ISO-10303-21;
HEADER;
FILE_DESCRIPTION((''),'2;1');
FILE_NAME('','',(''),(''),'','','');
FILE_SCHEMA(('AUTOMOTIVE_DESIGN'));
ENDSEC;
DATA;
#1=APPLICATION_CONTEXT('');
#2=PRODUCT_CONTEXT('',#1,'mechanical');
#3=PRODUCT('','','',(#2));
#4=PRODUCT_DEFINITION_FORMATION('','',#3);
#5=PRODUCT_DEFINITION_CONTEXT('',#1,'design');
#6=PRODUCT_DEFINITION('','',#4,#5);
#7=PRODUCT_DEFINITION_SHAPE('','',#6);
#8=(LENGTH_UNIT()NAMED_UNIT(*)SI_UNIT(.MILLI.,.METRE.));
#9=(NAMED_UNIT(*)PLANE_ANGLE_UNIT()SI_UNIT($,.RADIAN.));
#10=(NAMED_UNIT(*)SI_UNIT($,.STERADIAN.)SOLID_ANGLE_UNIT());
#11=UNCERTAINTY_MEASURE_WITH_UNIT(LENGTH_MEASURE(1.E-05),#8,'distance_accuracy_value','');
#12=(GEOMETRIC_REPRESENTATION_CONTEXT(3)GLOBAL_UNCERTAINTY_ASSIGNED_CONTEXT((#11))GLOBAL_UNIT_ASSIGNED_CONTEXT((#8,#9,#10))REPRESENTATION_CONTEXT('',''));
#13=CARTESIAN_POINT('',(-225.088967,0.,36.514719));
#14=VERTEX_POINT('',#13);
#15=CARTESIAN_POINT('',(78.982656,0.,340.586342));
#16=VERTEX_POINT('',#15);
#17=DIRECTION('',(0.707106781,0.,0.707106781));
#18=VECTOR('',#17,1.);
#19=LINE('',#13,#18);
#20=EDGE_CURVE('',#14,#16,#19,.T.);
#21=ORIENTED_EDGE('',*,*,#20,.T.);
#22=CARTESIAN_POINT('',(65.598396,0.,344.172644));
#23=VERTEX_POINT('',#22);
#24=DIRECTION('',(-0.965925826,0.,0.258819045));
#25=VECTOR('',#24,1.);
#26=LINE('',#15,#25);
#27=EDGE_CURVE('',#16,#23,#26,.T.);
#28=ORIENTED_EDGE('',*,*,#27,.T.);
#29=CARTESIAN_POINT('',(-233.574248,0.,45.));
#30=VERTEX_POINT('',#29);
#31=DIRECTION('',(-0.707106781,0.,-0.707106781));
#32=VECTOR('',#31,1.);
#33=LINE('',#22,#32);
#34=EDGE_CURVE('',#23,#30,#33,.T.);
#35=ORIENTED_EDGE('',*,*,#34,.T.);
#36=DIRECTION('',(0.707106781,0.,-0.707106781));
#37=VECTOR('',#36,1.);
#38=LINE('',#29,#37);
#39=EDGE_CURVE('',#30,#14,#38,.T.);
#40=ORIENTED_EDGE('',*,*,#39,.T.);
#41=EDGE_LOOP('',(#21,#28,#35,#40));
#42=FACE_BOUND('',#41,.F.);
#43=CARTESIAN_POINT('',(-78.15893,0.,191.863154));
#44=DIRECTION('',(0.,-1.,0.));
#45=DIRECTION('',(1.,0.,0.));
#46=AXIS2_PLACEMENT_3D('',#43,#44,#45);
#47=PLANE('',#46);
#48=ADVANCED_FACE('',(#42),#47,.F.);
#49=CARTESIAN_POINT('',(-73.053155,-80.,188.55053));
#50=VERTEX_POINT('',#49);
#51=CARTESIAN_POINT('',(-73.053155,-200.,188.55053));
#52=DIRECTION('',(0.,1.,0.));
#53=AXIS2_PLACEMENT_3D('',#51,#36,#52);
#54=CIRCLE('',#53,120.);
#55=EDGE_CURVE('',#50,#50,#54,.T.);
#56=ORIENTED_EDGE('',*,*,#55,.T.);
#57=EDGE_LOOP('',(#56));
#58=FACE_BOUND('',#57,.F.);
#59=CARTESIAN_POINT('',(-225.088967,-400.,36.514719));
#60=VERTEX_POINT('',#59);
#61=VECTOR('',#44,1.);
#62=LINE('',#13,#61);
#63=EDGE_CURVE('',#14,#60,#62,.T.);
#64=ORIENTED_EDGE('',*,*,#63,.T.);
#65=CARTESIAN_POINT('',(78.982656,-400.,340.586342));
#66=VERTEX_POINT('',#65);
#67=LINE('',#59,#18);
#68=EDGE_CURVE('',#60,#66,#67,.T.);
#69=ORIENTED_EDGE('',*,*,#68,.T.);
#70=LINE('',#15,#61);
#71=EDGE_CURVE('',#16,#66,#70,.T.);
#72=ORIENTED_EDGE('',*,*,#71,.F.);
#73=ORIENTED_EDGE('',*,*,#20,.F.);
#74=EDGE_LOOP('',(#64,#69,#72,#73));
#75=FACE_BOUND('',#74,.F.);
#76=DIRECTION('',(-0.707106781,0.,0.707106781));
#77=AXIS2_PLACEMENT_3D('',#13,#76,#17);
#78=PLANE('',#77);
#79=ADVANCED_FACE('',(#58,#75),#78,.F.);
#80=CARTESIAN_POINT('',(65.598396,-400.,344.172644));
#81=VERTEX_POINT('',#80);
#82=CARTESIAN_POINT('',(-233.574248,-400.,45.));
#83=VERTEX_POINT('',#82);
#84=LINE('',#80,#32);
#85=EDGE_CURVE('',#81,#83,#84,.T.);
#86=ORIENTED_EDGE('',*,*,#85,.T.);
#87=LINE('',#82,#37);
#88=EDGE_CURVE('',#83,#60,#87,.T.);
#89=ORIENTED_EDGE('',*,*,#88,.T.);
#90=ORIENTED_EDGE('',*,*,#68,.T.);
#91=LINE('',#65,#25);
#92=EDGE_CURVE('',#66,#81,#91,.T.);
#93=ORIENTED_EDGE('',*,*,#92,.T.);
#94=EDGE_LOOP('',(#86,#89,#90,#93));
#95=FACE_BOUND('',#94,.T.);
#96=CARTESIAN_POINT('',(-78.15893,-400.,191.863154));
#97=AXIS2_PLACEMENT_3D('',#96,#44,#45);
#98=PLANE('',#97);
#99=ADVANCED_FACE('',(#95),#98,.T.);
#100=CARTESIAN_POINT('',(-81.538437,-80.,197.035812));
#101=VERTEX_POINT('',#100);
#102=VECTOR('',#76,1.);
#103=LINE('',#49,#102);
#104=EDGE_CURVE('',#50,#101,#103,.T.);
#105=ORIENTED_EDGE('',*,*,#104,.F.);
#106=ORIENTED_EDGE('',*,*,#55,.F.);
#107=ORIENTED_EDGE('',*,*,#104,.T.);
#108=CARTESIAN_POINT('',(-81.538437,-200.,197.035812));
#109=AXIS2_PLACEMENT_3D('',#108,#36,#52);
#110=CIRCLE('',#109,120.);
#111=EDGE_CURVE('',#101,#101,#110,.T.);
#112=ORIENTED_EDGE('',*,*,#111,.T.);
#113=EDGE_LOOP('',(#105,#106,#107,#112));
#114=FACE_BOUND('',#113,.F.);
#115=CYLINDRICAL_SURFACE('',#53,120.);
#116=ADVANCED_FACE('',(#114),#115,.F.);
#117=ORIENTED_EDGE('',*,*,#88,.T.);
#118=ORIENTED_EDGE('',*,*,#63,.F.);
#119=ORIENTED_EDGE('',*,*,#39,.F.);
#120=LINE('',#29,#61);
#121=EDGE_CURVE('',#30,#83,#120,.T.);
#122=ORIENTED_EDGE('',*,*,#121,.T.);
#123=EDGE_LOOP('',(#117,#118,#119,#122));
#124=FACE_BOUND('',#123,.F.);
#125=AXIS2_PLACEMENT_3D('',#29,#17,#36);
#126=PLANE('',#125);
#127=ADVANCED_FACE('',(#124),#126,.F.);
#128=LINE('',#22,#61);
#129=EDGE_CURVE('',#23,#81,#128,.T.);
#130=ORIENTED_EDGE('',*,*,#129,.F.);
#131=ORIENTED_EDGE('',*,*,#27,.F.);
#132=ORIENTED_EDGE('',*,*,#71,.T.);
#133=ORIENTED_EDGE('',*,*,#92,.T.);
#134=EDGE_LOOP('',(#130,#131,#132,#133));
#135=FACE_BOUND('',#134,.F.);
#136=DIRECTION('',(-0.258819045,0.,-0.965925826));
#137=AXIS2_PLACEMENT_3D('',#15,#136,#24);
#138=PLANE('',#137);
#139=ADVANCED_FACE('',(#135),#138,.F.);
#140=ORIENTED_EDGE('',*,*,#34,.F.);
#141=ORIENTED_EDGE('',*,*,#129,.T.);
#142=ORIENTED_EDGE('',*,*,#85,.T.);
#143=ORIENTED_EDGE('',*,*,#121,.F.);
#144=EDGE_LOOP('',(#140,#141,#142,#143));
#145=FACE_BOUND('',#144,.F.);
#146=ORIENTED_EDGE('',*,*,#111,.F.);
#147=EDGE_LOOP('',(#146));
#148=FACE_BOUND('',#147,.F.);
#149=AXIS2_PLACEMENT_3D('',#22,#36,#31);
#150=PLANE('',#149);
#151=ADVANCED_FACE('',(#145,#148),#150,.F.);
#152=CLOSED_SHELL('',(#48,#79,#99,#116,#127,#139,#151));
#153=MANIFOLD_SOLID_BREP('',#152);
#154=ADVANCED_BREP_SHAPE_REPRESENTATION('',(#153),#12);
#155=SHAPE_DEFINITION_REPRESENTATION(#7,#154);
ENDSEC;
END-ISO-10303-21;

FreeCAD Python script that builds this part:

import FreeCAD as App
import Part
import Sketcher
Q = App.Units.Quantity


def add_polygon(sketch, points):
    """Adds a closed chain of lines whose ends are joined by coincident constraints."""
    first, n = sketch.GeometryCount, len(points)
    for a, b in zip(points, points[1:] + points[:1]):
        sketch.addGeometry(Part.LineSegment(App.Vector(*a, 0), App.Vector(*b, 0)), False)
    for i in range(n):
        sketch.addConstraint(Sketcher.Constraint("Coincident", first + i, 2, first + (i + 1) % n, 1))

doc = App.newDocument("Part")
body = doc.addObject("PartDesign::Body", "Body")

sketch1 = body.newObject("Sketcher::SketchObject", "Sketch")
sketch1.AttachmentSupport = (doc.getObject("XZ_Plane"), [""])
sketch1.MapMode = "FlatFace"
add_polygon(sketch1, [(-225.088967, 36.514719), (78.982656, 340.586342), (65.598396, 344.172644), (-233.574248, 45)])
sketch1.addConstraint(Sketcher.Constraint("Parallel", 0, 2))
sketch1.addConstraint(Sketcher.Constraint("Perpendicular", 2, 3))
sketch1.addConstraint(Sketcher.Constraint("Angle", 0, Q("45 deg")))
sketch1.addConstraint(Sketcher.Constraint("Angle", 1, Q("165 deg")))
sketch1.addConstraint(Sketcher.Constraint("Distance", 3, 12.0))
sketch1.addConstraint(Sketcher.Constraint("DistanceY", -1, 1, 2, 2, 45.0))
sketch1.addConstraint(Sketcher.Constraint("Distance", 2, 423.094011))
sketch1.addConstraint(Sketcher.Constraint("DistanceX", 2, 2, -1, 1, 233.574248))
pad1 = body.newObject("PartDesign::Pad", "Pad")
pad1.Profile = sketch1
pad1.Length = 400

sketch2 = body.newObject("Sketcher::SketchObject", "Sketch001")
sketch2.Placement = App.Placement(App.Vector(-130.801843, 0, 130.801843), App.Rotation(App.Vector(0, 1, 0), App.Vector(0.707106781, 0, 0.707106781), App.Vector(0.707106781, 0, -0.707106781), "ZXY"))
sketch2.addGeometry(Part.Circle(App.Vector(-200, 81.668977, 0), App.Vector(0, 0, 1), 120), False)
sketch2.addConstraint(Sketcher.Constraint("Diameter", 0, 240.0))
sketch2.addConstraint(Sketcher.Constraint("DistanceX", 0, 3, -1, 1, 200.0))
sketch2.addConstraint(Sketcher.Constraint("DistanceY", -1, 1, 0, 3, 81.668977))
pocket1 = body.newObject("PartDesign::Pocket", "Pocket")
pocket1.Profile = sketch2
pocket1.Length = 25

doc.recompute()
